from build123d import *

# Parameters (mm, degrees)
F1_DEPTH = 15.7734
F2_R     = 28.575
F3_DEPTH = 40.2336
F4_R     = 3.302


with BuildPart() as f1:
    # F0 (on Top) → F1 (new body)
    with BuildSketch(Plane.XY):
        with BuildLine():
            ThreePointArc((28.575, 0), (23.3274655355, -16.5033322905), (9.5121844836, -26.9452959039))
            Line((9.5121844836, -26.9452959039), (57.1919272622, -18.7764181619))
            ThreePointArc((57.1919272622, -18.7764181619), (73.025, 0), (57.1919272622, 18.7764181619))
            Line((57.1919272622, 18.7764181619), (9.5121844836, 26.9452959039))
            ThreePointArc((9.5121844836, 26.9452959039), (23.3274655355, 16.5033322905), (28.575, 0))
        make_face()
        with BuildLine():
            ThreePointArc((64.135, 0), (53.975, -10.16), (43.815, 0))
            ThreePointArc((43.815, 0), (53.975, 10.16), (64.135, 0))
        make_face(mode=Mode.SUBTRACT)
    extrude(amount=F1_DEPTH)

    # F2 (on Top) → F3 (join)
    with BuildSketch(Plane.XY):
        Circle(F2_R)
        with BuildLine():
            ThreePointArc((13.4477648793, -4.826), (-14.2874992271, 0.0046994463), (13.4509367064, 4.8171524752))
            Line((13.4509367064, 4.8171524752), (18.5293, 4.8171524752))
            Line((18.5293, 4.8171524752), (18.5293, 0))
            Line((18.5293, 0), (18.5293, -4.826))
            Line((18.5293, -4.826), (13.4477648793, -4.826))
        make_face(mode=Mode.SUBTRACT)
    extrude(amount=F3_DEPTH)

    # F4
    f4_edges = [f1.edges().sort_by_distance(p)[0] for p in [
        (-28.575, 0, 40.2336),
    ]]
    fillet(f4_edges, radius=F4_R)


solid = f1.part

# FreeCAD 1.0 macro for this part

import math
import FreeCAD as App
import Part
import Sketcher

V = App.Vector
Q = App.Units.Quantity


def edges_at(feature, points):
    """Names of the edges that pass closest to the given points."""
    edges = feature.Shape.Edges
    near = lambda p: min(range(len(edges)), key=lambda i: edges[i].distToShape(Part.Vertex(*p))[0])
    return sorted({f"Edge{near(p) + 1}" for p in points})

doc = App.newDocument("Part")
body = doc.addObject("PartDesign::Body", "Body")

sketch1 = doc.addObject("Sketcher::SketchObject", "Sketch")
body.addObject(sketch1)
sketch1.AttachmentSupport = (doc.XY_Plane, [""])
sketch1.MapMode = "FlatFace"
sketch1.addGeometry(Part.ArcOfCircle(Part.Circle(V(0, 0, 0), V(0, 0, 1), 29), math.radians(-71), math.radians(0)), False)
sketch1.addGeometry(Part.LineSegment(V(10, -27, 0), V(57, -19, 0)), False)
sketch1.addGeometry(Part.ArcOfCircle(Part.Circle(V(54, 0, 0), V(0, 0, 1), 19), math.radians(-80), math.radians(80)), False)
sketch1.addGeometry(Part.LineSegment(V(57, 19, 0), V(10, 27, 0)), False)
sketch1.addGeometry(Part.ArcOfCircle(Part.Circle(V(0, 0, 0), V(0, 0, 1), 29), math.radians(0), math.radians(71)), False)
sketch1.addGeometry(Part.Circle(V(54, 0, 0), V(0, 0, 1), 10), False)
sketch1.addConstraint(Sketcher.Constraint("Coincident", 0, 1, 1, 1))
sketch1.addConstraint(Sketcher.Constraint("Tangent", 1, 2, 2, 1))
sketch1.addConstraint(Sketcher.Constraint("Tangent", 2, 2, 3, 1))
sketch1.addConstraint(Sketcher.Constraint("Coincident", 3, 2, 4, 2))
sketch1.addConstraint(Sketcher.Constraint("Tangent", 4, 1, 0, 2))
sketch1.addConstraint(Sketcher.Constraint("Coincident", 0, 3, -1, 1))
sketch1.addConstraint(Sketcher.Constraint("Coincident", 5, 3, 2, 3))
sketch1.addConstraint(Sketcher.Constraint("Equal", 0, 4))
sketch1.addConstraint(Sketcher.Constraint("Symmetric", 1, 2, 2, 2, -1))
sketch1.addConstraint(Sketcher.Constraint("PointOnObject", 4, 1, -1))
sketch1.addConstraint(Sketcher.Constraint("Diameter", 5, Q("0.8 in")))
sketch1.addConstraint(Sketcher.Constraint("Radius", 2, Q("0.75 in")))
sketch1.addConstraint(Sketcher.Constraint("Radius", 0, Q("1.125 in")))
sketch1.addConstraint(Sketcher.Constraint("DistanceX", 4, 1, 2, 3, Q("1 in")))
sketch1.addConstraint(Sketcher.Constraint("Distance", 1, 48.374461))
pad1 = doc.addObject("PartDesign::Pad", "Pad")
body.addObject(pad1)
pad1.Profile = sketch1
pad1.Length = Q("0.621 in")

sketch2 = doc.addObject("Sketcher::SketchObject", "Sketch001")
body.addObject(sketch2)
sketch2.AttachmentSupport = (doc.XY_Plane, [""])
sketch2.MapMode = "FlatFace"
sketch2.addGeometry(Part.Circle(V(0, 0, 0), V(0, 0, 1), 29), False)
sketch2.addGeometry(Part.LineSegment(V(19, -5, 0), V(13, -5, 0)), False)
sketch2.addGeometry(Part.ArcOfCircle(Part.Circle(V(0, 0, 0), V(0, 0, 1), 14), math.radians(20), math.radians(340)), False)
sketch2.addGeometry(Part.LineSegment(V(13, 5, 0), V(19, 5, 0)), False)
sketch2.addGeometry(Part.LineSegment(V(19, 5, 0), V(19, -5, 0)), False)
sketch2.addConstraint(Sketcher.Constraint("Coincident", 1, 2, 2, 2))
sketch2.addConstraint(Sketcher.Constraint("Coincident", 2, 1, 3, 1))
sketch2.addConstraint(Sketcher.Constraint("Coincident", 3, 2, 4, 1))
sketch2.addConstraint(Sketcher.Constraint("Coincident", 4, 2, 1, 1))
sketch2.addConstraint(Sketcher.Constraint("Horizontal", 1))
sketch2.addConstraint(Sketcher.Constraint("Horizontal", 3))
sketch2.addConstraint(Sketcher.Constraint("Vertical", 4))
sketch2.addConstraint(Sketcher.Constraint("Coincident", 0, 3, -1, 1))
sketch2.addConstraint(Sketcher.Constraint("Coincident", 2, 3, -1, 1))
sketch2.addConstraint(Sketcher.Constraint("Diameter", 0, Q("2.25 in")))
sketch2.addConstraint(Sketcher.Constraint("Radius", 2, Q("0.5625 in")))
sketch2.addConstraint(Sketcher.Constraint("DistanceY", 1, 2, -1, 1, Q("0.19 in")))
sketch2.addConstraint(Sketcher.Constraint("DistanceX", -1, 1, 3, 2, Q("0.7295 in")))
sketch2.addConstraint(Sketcher.Constraint("DistanceX", 3, 1, 3, 2, 5.078363))
pad2 = doc.addObject("PartDesign::Pad", "Pad001")
body.addObject(pad2)
pad2.Profile = sketch2
pad2.Length = Q("1.584 in")
doc.recompute()

fillet = doc.addObject("PartDesign::Fillet", "Fillet")
body.addObject(fillet)
fillet.Base = (pad2, edges_at(pad2, [(-28.575, 0, 40.234)]))
fillet.Radius = Q("0.13 in")

doc.recompute()
